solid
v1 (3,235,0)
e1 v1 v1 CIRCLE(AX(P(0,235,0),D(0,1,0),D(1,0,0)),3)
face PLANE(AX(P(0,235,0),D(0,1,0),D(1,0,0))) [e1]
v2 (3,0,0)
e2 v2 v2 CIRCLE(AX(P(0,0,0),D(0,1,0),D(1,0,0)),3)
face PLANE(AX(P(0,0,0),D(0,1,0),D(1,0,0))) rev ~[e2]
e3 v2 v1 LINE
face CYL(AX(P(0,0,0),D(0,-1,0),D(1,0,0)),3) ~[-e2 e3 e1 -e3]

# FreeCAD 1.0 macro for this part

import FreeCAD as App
import Part
import Sketcher
Q = App.Units.Quantity

doc = App.newDocument("Part")
params = doc.addObject("Spreadsheet::Sheet", "Params")
for row, (alias, value) in enumerate([
    ("sketch1_diameter", "6 mm"),
    ("pad1_length", "235 mm"),
], start=1):
    params.set(f"A{row}", alias)
    params.set(f"B{row}", "=" + value)
    params.setAlias(f"B{row}", alias)

body = doc.addObject("PartDesign::Body", "Body")

sketch1 = body.newObject("Sketcher::SketchObject", "Sketch")
sketch1.AttachmentSupport = (doc.getObject("XZ_Plane"), [""])
sketch1.MapMode = "FlatFace"
sketch1.addGeometry(Part.Circle(App.Vector(0, 0, 0), App.Vector(0, 0, 1), 3), False)
sketch1.addConstraint([
    Sketcher.Constraint("Coincident", 0, 3, -1, 1),
    Sketcher.Constraint("Diameter", 0, Q("6 mm")),
])
sketch1.setExpression("Constraints[1]", "Params.sketch1_diameter")
pad1 = body.newObject("PartDesign::Pad", "Pad")
pad1.Profile = sketch1
pad1.setExpression("Length", "Params.pad1_length")
pad1.Reversed = True

doc.recompute()
